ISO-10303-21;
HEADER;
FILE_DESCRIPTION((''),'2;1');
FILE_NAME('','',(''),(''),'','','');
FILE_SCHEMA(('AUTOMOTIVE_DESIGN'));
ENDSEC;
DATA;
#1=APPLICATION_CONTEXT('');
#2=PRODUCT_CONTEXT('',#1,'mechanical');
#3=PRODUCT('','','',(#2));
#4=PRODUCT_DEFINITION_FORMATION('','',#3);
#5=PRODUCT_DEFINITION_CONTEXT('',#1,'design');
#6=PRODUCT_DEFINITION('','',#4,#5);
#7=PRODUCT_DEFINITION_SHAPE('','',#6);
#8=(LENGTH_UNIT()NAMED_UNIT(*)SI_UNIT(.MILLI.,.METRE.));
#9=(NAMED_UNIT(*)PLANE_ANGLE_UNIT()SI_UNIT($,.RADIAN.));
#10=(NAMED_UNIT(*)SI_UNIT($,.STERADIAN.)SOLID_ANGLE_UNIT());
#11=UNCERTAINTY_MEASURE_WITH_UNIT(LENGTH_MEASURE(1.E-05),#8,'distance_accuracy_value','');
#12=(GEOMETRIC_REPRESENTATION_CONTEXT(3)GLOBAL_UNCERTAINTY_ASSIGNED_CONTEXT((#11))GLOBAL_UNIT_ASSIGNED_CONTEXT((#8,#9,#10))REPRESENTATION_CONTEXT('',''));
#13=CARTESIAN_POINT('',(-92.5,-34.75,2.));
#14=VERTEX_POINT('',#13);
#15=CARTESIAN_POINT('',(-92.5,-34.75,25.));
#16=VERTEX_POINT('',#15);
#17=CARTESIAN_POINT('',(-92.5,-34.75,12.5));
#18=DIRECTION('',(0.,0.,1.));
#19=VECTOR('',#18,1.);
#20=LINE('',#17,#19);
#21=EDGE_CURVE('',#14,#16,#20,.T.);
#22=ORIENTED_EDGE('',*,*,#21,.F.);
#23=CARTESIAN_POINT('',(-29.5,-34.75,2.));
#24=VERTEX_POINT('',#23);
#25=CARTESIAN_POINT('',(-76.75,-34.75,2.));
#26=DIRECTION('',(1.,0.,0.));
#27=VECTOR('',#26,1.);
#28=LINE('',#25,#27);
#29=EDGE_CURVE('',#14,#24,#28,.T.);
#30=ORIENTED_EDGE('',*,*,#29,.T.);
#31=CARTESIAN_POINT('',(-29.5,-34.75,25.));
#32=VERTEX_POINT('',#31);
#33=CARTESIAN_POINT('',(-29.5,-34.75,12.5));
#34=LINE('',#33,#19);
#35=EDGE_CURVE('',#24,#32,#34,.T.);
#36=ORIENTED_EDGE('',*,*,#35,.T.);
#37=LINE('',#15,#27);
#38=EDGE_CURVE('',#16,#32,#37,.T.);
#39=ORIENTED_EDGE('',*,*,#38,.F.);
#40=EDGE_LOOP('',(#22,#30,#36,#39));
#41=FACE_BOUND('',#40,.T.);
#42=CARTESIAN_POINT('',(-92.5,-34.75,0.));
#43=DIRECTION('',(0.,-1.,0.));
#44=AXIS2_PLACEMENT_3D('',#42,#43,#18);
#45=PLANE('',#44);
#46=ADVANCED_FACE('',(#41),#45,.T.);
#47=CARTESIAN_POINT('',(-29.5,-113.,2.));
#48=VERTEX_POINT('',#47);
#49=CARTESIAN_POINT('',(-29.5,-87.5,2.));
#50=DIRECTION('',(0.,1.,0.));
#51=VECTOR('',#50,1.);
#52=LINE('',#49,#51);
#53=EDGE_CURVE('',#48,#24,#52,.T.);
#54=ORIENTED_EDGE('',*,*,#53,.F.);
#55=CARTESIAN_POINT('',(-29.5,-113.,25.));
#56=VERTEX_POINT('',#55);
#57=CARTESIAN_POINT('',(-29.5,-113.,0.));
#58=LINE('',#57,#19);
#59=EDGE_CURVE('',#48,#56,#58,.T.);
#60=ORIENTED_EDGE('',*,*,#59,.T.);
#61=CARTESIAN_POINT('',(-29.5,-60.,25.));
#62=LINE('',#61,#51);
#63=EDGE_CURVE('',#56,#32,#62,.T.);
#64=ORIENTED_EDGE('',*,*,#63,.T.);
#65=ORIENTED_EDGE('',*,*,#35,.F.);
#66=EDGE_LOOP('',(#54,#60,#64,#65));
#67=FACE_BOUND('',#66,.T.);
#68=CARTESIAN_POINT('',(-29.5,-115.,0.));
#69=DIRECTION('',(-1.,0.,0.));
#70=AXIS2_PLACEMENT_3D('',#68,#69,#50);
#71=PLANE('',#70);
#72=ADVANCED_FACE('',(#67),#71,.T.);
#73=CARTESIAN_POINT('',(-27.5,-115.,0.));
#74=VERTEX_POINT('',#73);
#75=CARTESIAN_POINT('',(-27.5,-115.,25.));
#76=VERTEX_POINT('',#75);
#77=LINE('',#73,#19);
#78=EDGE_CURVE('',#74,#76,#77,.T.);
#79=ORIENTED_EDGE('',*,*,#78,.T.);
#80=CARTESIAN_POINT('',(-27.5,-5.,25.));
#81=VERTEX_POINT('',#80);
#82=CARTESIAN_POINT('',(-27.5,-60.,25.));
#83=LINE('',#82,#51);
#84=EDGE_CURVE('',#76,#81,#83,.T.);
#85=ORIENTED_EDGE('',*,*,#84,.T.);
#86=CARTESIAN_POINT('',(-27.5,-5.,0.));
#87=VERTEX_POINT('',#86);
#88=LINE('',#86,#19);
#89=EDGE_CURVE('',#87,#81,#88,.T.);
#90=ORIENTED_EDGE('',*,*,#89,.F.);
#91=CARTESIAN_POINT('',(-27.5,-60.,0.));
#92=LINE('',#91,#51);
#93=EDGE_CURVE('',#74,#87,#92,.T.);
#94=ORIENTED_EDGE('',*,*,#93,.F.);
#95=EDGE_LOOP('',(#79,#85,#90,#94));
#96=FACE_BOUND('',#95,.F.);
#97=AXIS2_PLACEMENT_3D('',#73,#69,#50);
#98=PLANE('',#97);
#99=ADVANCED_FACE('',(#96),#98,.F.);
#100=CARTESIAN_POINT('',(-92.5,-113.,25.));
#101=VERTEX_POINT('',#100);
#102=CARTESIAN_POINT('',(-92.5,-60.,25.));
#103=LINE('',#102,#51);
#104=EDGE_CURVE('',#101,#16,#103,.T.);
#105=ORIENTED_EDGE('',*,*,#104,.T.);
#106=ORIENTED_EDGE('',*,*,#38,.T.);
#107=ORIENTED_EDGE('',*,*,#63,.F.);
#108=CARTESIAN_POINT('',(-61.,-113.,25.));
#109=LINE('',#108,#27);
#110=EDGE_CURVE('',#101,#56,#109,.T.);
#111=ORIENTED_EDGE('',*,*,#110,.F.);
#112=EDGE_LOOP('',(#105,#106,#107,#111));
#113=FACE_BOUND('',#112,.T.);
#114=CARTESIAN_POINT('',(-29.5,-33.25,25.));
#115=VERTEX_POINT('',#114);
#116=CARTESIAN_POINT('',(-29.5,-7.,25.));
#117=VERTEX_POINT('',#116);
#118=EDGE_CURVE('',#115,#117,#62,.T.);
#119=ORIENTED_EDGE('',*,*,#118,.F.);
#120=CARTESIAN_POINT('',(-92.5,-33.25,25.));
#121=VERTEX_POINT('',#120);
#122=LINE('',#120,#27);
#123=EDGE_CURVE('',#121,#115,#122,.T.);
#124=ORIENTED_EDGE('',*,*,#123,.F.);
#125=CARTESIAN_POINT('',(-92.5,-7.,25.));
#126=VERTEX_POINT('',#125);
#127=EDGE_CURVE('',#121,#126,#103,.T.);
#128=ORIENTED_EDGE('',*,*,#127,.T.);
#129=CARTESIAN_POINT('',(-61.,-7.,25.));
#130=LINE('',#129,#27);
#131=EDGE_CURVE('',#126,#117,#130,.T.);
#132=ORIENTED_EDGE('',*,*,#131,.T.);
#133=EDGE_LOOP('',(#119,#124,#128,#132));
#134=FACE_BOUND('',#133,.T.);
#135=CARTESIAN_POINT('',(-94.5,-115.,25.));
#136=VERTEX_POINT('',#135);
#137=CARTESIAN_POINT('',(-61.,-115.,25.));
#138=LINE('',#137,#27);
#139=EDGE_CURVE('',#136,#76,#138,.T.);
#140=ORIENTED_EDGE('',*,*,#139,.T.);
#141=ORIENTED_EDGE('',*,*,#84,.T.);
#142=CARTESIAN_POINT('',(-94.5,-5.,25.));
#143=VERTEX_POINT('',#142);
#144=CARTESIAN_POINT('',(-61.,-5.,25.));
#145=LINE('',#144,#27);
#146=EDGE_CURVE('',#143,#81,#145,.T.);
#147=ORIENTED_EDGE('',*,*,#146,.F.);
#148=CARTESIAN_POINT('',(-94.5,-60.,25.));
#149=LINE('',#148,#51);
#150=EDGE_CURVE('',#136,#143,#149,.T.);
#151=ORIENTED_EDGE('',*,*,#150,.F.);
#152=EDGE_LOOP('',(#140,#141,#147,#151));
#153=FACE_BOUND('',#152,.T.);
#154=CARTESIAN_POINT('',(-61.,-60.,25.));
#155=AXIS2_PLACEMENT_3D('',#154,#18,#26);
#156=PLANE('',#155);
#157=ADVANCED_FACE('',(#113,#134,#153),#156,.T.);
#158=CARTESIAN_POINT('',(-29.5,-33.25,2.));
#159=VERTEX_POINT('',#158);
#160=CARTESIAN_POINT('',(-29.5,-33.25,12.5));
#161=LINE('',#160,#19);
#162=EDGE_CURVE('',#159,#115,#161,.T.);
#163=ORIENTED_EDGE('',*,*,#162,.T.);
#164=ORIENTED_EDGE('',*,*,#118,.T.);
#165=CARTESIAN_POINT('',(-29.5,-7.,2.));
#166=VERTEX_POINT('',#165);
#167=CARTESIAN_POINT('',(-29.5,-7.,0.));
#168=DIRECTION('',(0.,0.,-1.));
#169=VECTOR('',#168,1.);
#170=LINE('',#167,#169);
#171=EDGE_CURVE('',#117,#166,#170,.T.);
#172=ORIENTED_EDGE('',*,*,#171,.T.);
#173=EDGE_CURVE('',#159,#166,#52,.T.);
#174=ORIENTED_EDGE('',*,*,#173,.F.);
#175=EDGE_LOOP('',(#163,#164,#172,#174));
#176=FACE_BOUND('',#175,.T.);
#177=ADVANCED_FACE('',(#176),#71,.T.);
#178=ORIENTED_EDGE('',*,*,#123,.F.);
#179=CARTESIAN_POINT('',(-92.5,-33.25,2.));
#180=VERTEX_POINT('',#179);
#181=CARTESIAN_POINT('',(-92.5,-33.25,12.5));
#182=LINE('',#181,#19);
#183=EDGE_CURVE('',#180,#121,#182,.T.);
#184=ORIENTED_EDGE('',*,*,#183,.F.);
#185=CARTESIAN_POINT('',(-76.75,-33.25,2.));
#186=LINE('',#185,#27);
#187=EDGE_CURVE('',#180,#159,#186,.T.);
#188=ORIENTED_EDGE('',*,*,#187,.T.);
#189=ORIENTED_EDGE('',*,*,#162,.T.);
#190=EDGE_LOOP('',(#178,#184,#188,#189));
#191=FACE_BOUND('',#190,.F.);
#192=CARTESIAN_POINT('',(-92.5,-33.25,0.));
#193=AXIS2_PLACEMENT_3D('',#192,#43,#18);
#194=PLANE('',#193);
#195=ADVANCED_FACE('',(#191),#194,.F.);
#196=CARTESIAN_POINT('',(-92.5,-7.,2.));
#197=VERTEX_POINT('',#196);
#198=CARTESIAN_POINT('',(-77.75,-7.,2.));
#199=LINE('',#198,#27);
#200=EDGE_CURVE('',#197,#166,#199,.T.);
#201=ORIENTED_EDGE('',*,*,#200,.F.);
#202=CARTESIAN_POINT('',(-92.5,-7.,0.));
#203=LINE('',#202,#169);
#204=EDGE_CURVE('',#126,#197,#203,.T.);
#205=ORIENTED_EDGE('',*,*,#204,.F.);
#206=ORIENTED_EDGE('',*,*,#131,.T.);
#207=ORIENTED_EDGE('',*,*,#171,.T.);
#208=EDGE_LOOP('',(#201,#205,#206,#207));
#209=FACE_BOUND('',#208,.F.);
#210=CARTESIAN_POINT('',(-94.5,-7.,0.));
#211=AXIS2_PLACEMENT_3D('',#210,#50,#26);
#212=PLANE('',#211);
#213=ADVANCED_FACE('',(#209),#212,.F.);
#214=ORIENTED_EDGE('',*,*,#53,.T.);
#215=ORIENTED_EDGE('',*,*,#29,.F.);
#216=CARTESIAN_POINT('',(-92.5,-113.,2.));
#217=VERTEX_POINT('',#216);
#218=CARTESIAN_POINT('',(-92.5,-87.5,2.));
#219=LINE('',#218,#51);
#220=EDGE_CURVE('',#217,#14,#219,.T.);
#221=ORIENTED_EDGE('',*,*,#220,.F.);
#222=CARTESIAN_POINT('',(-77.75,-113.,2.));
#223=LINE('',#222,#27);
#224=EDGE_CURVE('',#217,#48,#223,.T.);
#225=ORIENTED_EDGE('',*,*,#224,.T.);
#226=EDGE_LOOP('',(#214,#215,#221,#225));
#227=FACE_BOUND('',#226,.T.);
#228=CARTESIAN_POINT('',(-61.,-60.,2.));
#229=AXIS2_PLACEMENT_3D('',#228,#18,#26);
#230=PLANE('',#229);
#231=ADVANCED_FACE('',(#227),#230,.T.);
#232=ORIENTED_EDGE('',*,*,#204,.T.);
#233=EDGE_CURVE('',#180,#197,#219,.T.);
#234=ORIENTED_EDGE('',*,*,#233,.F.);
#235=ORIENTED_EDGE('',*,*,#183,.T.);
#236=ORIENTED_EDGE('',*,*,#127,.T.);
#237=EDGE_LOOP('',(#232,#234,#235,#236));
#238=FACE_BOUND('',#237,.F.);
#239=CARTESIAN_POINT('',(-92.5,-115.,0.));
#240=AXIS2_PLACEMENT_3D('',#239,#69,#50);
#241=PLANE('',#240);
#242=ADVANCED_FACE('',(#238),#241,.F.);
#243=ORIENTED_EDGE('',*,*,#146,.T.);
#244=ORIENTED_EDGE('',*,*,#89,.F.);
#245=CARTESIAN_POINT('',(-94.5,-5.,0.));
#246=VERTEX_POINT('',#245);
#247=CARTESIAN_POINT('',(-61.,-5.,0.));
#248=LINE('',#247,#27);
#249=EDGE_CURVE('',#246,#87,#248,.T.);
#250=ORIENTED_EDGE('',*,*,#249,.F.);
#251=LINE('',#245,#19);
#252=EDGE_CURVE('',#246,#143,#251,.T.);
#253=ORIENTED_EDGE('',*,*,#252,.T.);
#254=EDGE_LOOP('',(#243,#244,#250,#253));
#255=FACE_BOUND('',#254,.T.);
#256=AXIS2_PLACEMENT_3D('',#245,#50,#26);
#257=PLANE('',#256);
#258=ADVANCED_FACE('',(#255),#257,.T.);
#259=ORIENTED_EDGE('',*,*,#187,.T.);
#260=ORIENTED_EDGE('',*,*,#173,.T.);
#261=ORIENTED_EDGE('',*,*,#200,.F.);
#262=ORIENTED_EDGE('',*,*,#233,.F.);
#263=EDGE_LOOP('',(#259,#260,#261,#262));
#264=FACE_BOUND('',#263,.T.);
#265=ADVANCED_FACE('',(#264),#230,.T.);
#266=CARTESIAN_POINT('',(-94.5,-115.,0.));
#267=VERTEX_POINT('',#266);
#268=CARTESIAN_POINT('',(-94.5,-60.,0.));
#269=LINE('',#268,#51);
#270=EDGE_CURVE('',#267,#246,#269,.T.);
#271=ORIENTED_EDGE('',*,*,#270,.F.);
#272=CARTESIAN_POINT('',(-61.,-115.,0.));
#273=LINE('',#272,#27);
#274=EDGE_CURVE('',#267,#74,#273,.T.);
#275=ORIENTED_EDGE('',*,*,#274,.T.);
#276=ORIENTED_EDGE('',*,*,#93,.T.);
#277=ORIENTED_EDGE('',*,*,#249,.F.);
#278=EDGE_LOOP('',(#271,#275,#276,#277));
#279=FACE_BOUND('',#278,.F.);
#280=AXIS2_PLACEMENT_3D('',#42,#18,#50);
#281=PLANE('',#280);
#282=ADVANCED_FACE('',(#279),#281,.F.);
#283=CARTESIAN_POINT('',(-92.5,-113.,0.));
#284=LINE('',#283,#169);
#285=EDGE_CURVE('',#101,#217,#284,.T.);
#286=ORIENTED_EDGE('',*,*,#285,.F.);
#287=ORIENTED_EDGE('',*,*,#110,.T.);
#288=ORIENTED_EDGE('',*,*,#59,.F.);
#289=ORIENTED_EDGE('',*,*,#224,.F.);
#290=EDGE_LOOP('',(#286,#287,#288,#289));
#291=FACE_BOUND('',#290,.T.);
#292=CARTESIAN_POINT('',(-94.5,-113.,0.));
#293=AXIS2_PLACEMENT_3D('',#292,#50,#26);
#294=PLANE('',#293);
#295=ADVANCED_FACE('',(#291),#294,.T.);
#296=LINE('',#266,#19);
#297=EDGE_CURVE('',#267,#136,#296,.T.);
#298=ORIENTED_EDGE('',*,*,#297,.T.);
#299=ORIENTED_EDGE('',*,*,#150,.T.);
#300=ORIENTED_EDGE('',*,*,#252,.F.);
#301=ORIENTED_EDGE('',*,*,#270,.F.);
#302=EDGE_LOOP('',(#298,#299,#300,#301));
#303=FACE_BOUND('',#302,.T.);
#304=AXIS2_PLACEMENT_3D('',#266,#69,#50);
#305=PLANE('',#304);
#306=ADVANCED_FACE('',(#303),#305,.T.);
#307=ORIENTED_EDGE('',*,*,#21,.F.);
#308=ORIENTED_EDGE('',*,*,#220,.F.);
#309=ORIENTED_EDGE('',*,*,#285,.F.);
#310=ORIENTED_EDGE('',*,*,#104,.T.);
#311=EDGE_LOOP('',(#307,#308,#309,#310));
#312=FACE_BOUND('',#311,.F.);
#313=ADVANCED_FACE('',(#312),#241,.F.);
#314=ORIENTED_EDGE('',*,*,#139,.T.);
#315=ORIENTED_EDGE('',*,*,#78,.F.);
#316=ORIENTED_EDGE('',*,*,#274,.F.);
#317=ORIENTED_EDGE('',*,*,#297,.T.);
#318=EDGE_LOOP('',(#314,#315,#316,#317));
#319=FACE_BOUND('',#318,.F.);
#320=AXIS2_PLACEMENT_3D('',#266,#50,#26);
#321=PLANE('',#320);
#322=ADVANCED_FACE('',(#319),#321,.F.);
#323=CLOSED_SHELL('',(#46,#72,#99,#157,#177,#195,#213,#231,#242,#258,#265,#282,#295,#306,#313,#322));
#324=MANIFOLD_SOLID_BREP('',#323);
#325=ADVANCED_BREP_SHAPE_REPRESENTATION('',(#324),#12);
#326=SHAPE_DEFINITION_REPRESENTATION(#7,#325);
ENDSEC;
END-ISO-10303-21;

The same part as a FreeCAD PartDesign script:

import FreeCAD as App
import Part
import Sketcher
from FreeCAD import Vector


def faces_at(feature, points):
    """Names of the faces that lie closest to the given points."""
    faces = feature.Shape.Faces
    near = lambda p: min(range(len(faces)), key=lambda i: faces[i].distToShape(Part.Vertex(*p))[0])
    return sorted({f"Face{near(p) + 1}" for p in points})

doc = App.newDocument("Part")
body = doc.addObject("PartDesign::Body", "Body")

sketch1 = body.newObject("Sketcher::SketchObject", "Sketch")
sketch1.AttachmentSupport = (doc.getObject("XY_Plane"), [""])
sketch1.MapMode = "FlatFace"
sketch1.addGeometry([
    Part.LineSegment(Vector(-33.5, 55, 0), Vector(-33.5, -55, 0)),
    Part.LineSegment(Vector(-33.5, -55, 0), Vector(33.5, -55, 0)),
    Part.LineSegment(Vector(33.5, -55, 0), Vector(33.5, 55, 0)),
    Part.LineSegment(Vector(33.5, 55, 0), Vector(-33.5, 55, 0)),
], False)
sketch1.addConstraint([
    Sketcher.Constraint("Coincident", 0, 2, 1, 1),
    Sketcher.Constraint("Coincident", 1, 2, 2, 1),
    Sketcher.Constraint("Coincident", 2, 2, 3, 1),
    Sketcher.Constraint("Coincident", 3, 2, 0, 1),
    Sketcher.Constraint("Vertical", 0),
    Sketcher.Constraint("Horizontal", 1),
    Sketcher.Constraint("Vertical", 2),
    Sketcher.Constraint("Horizontal", 3),
    Sketcher.Constraint("Symmetric", 0, 2, 2, 2, -1, 1),
    Sketcher.Constraint("DistanceX", 1, 1, 1, 2, 67.0),
    Sketcher.Constraint("DistanceY", 0, 2, 0, 1, 110.0),
])
pad1 = body.newObject("PartDesign::Pad", "Pad")
pad1.Profile = sketch1
pad1.Length = 25
doc.recompute()

thickness = body.newObject("PartDesign::Thickness", "Thickness")
thickness.Base = (pad1, faces_at(pad1, [(0, 0, 25)]))
thickness.Value = 2
thickness.Reversed = True
thickness.Join = "Arc"

sketch2 = body.newObject("Sketcher::SketchObject", "Sketch001")
sketch2.AttachmentSupport = (doc.getObject("YZ_Plane"), [""])
sketch2.MapMode = "FlatFace"
sketch2.AttachmentOffset = App.Placement(Vector(0, 0, -31.5), App.Rotation())
sketch2.addGeometry([
    Part.LineSegment(Vector(25.25, 25, 0), Vector(25.25, 0, 0)),
    Part.LineSegment(Vector(25.25, 0, 0), Vector(26.75, 0, 0)),
    Part.LineSegment(Vector(26.75, 0, 0), Vector(26.75, 25, 0)),
    Part.LineSegment(Vector(26.75, 25, 0), Vector(25.25, 25, 0)),
], False)
sketch2.addConstraint([
    Sketcher.Constraint("Coincident", 0, 2, 1, 1),
    Sketcher.Constraint("Coincident", 1, 2, 2, 1),
    Sketcher.Constraint("Coincident", 2, 2, 3, 1),
    Sketcher.Constraint("Coincident", 3, 2, 0, 1),
    Sketcher.Constraint("Vertical", 0),
    Sketcher.Constraint("Horizontal", 1),
    Sketcher.Constraint("Vertical", 2),
    Sketcher.Constraint("Horizontal", 3),
    Sketcher.Constraint("PointOnObject", 0, 2, -1),
    Sketcher.Constraint("DistanceY", 0, 2, 0, 1, 25.0),
    Sketcher.Constraint("DistanceX", 1, 1, 1, 2, 1.5),
    Sketcher.Constraint("DistanceX", -1, 1, 0, 2, 25.25),
])
pad2 = body.newObject("PartDesign::Pad", "Pad001")
pad2.Profile = sketch2
pad2.Length = 63
body2 = doc.addObject("PartDesign::Body", "Body001")
doc.recompute()

body.Placement = App.Placement(Vector(-61, -60, 0), App.Rotation(Vector(0, 0, 1), 0))
boolean = body2.newObject("PartDesign::Boolean", "Boolean")
boolean.Type = "Fuse"
boolean.addObjects([body])

doc.recompute()
